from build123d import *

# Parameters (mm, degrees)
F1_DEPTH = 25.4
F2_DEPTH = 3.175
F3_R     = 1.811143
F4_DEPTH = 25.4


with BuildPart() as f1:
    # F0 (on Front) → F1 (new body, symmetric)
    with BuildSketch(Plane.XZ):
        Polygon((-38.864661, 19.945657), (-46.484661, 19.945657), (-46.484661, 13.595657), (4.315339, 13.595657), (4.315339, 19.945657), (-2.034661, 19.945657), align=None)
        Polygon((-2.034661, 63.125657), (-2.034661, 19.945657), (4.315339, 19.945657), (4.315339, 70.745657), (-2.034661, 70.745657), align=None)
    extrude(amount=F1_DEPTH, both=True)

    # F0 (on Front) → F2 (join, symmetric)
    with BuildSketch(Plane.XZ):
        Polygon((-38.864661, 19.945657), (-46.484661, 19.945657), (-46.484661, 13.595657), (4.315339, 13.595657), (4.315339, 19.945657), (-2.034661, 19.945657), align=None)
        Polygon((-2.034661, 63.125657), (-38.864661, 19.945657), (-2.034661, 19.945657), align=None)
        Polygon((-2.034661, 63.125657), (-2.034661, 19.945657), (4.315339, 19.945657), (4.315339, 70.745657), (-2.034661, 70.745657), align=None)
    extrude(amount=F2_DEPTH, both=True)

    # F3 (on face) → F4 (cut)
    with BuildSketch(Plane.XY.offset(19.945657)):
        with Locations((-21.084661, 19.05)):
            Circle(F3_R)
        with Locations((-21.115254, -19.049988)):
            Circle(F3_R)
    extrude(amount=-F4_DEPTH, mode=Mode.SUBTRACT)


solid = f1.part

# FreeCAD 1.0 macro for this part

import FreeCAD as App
import Part
import Sketcher

V = App.Vector
Q = App.Units.Quantity


def add_polygon(sketch, points):
    """Adds a closed chain of lines whose ends are joined by coincident constraints."""
    first, n = sketch.GeometryCount, len(points)
    for a, b in zip(points, points[1:] + points[:1]):
        sketch.addGeometry(Part.LineSegment(App.Vector(*a, 0), App.Vector(*b, 0)), False)
    for i in range(n):
        sketch.addConstraint(Sketcher.Constraint("Coincident", first + i, 2, first + (i + 1) % n, 1))

doc = App.newDocument("Part")
params = doc.addObject("Spreadsheet::Sheet", "Params")
for row, (alias, value) in enumerate([
    ("sketch1_width", "2 in"),
    ("sketch1_width2", "0.25 in"),
    ("pad1_length", "2 in"),
    ("sketch2_width", "2 in"),
    ("sketch2_width2", "0.3 in"),
    ("sketch2_width3", "0.25 in"),
    ("pad2_length", "0.25 in"),
    ("pocket1_length", "1 in"),
], start=1):
    params.set(f"A{row}", alias)
    params.set(f"B{row}", "=" + value)
    params.setAlias(f"B{row}", alias)

body = doc.addObject("PartDesign::Body", "Body")

# Sketch on XZ plane
sketch1 = body.newObject("Sketcher::SketchObject", "Sketch")
sketch1.AttachmentSupport = (doc.getObject("XZ_Plane"), [""])
sketch1.MapMode = "FlatFace"
add_polygon(sketch1, [(-46.484661, 19.945657), (-46.484661, 13.595657), (4.315339, 13.595657), (4.315339, 70.745657), (-2.034661, 70.745657), (-2.034661, 19.945657)])  # lines 0-5
sketch1.addConstraint([
    Sketcher.Constraint("Vertical", 0),
    Sketcher.Constraint("Horizontal", 1),
    Sketcher.Constraint("Vertical", 2),
    Sketcher.Constraint("Horizontal", 3),
    Sketcher.Constraint("Vertical", 4),
    Sketcher.Constraint("Horizontal", 5),
    Sketcher.Constraint("Equal", 3, 0),
    Sketcher.Constraint("Equal", 1, 4),
    Sketcher.Constraint("DistanceX", 1, 1, 1, 2, Q("2 in")),
    Sketcher.Constraint("DistanceX", 3, 2, 3, 1, Q("0.25 in")),
    Sketcher.Constraint("DistanceX", 0, 2, -1, 1, 46.484661),
    Sketcher.Constraint("DistanceY", -1, 1, 0, 2, 13.595657),
])
sketch1.setExpression("Constraints[14]", "Params.sketch1_width")
sketch1.setExpression("Constraints[15]", "Params.sketch1_width2")
pad1 = body.newObject("PartDesign::Pad", "Pad")
pad1.Profile = sketch1
pad1.setExpression("Length", "Params.pad1_length")
pad1.Midplane = True

# Sketch on XZ plane
sketch2 = body.newObject("Sketcher::SketchObject", "Sketch001")
sketch2.AttachmentSupport = (doc.getObject("XZ_Plane"), [""])
sketch2.MapMode = "FlatFace"
add_polygon(sketch2, [(-46.484661, 19.945657), (-46.484661, 13.595657), (4.315339, 13.595657), (4.315339, 70.745657), (-2.034661, 70.745657), (-2.034661, 63.125657), (-38.864661, 19.945657)])  # lines 0-6
sketch2.addConstraint([
    Sketcher.Constraint("Vertical", 0),
    Sketcher.Constraint("Horizontal", 1),
    Sketcher.Constraint("Vertical", 2),
    Sketcher.Constraint("Horizontal", 3),
    Sketcher.Constraint("Vertical", 4),
    Sketcher.Constraint("Horizontal", 6),
    Sketcher.Constraint("Equal", 3, 0),
    Sketcher.Constraint("Equal", 6, 4),
    Sketcher.Constraint("DistanceX", 1, 1, 1, 2, Q("2 in")),
    Sketcher.Constraint("DistanceX", 6, 2, 6, 1, Q("0.3 in")),
    Sketcher.Constraint("DistanceY", 5, 2, 3, 2, Q("2 in")),
    Sketcher.Constraint("DistanceX", 3, 2, 3, 1, Q("0.25 in")),
    Sketcher.Constraint("DistanceX", 0, 2, -1, 1, 46.484661),
    Sketcher.Constraint("DistanceY", -1, 1, 0, 2, 13.595657),
])
sketch2.setExpression("Constraints[15]", "Params.sketch2_width")
sketch2.setExpression("Constraints[16]", "Params.sketch2_width2")
sketch2.setExpression("Constraints[18]", "Params.sketch2_width3")
pad2 = body.newObject("PartDesign::Pad", "Pad001")
pad2.Profile = sketch2
pad2.setExpression("Length", "Params.pad2_length")
pad2.Midplane = True

# Sketch on XY plane
sketch3 = body.newObject("Sketcher::SketchObject", "Sketch002")
sketch3.AttachmentSupport = (doc.getObject("XY_Plane"), [""])
sketch3.MapMode = "FlatFace"
sketch3.AttachmentOffset = App.Placement(V(0, 0, 19.945657), App.Rotation())
sketch3.addGeometry([
    Part.Circle(V(-21.084661, 19.05, 0), V(0, 0, 1), 1.811143),
    Part.Circle(V(-21.115254, -19.049988, 0), V(0, 0, 1), 1.811143),
], False)
sketch3.addConstraint([
    Sketcher.Constraint("Equal", 0, 1),
    Sketcher.Constraint("DistanceY", -1, 1, 0, 3, Q("0.75 in")),
    Sketcher.Constraint("Diameter", 0, 3.622286),
    Sketcher.Constraint("DistanceX", 0, 3, -1, 1, 21.084661),
    Sketcher.Constraint("DistanceX", 1, 3, -1, 1, 21.115254),
    Sketcher.Constraint("DistanceY", 1, 3, -1, 1, 19.049988),
])
pocket1 = body.newObject("PartDesign::Pocket", "Pocket")
pocket1.Profile = sketch3
pocket1.setExpression("Length", "Params.pocket1_length")

doc.recompute()
